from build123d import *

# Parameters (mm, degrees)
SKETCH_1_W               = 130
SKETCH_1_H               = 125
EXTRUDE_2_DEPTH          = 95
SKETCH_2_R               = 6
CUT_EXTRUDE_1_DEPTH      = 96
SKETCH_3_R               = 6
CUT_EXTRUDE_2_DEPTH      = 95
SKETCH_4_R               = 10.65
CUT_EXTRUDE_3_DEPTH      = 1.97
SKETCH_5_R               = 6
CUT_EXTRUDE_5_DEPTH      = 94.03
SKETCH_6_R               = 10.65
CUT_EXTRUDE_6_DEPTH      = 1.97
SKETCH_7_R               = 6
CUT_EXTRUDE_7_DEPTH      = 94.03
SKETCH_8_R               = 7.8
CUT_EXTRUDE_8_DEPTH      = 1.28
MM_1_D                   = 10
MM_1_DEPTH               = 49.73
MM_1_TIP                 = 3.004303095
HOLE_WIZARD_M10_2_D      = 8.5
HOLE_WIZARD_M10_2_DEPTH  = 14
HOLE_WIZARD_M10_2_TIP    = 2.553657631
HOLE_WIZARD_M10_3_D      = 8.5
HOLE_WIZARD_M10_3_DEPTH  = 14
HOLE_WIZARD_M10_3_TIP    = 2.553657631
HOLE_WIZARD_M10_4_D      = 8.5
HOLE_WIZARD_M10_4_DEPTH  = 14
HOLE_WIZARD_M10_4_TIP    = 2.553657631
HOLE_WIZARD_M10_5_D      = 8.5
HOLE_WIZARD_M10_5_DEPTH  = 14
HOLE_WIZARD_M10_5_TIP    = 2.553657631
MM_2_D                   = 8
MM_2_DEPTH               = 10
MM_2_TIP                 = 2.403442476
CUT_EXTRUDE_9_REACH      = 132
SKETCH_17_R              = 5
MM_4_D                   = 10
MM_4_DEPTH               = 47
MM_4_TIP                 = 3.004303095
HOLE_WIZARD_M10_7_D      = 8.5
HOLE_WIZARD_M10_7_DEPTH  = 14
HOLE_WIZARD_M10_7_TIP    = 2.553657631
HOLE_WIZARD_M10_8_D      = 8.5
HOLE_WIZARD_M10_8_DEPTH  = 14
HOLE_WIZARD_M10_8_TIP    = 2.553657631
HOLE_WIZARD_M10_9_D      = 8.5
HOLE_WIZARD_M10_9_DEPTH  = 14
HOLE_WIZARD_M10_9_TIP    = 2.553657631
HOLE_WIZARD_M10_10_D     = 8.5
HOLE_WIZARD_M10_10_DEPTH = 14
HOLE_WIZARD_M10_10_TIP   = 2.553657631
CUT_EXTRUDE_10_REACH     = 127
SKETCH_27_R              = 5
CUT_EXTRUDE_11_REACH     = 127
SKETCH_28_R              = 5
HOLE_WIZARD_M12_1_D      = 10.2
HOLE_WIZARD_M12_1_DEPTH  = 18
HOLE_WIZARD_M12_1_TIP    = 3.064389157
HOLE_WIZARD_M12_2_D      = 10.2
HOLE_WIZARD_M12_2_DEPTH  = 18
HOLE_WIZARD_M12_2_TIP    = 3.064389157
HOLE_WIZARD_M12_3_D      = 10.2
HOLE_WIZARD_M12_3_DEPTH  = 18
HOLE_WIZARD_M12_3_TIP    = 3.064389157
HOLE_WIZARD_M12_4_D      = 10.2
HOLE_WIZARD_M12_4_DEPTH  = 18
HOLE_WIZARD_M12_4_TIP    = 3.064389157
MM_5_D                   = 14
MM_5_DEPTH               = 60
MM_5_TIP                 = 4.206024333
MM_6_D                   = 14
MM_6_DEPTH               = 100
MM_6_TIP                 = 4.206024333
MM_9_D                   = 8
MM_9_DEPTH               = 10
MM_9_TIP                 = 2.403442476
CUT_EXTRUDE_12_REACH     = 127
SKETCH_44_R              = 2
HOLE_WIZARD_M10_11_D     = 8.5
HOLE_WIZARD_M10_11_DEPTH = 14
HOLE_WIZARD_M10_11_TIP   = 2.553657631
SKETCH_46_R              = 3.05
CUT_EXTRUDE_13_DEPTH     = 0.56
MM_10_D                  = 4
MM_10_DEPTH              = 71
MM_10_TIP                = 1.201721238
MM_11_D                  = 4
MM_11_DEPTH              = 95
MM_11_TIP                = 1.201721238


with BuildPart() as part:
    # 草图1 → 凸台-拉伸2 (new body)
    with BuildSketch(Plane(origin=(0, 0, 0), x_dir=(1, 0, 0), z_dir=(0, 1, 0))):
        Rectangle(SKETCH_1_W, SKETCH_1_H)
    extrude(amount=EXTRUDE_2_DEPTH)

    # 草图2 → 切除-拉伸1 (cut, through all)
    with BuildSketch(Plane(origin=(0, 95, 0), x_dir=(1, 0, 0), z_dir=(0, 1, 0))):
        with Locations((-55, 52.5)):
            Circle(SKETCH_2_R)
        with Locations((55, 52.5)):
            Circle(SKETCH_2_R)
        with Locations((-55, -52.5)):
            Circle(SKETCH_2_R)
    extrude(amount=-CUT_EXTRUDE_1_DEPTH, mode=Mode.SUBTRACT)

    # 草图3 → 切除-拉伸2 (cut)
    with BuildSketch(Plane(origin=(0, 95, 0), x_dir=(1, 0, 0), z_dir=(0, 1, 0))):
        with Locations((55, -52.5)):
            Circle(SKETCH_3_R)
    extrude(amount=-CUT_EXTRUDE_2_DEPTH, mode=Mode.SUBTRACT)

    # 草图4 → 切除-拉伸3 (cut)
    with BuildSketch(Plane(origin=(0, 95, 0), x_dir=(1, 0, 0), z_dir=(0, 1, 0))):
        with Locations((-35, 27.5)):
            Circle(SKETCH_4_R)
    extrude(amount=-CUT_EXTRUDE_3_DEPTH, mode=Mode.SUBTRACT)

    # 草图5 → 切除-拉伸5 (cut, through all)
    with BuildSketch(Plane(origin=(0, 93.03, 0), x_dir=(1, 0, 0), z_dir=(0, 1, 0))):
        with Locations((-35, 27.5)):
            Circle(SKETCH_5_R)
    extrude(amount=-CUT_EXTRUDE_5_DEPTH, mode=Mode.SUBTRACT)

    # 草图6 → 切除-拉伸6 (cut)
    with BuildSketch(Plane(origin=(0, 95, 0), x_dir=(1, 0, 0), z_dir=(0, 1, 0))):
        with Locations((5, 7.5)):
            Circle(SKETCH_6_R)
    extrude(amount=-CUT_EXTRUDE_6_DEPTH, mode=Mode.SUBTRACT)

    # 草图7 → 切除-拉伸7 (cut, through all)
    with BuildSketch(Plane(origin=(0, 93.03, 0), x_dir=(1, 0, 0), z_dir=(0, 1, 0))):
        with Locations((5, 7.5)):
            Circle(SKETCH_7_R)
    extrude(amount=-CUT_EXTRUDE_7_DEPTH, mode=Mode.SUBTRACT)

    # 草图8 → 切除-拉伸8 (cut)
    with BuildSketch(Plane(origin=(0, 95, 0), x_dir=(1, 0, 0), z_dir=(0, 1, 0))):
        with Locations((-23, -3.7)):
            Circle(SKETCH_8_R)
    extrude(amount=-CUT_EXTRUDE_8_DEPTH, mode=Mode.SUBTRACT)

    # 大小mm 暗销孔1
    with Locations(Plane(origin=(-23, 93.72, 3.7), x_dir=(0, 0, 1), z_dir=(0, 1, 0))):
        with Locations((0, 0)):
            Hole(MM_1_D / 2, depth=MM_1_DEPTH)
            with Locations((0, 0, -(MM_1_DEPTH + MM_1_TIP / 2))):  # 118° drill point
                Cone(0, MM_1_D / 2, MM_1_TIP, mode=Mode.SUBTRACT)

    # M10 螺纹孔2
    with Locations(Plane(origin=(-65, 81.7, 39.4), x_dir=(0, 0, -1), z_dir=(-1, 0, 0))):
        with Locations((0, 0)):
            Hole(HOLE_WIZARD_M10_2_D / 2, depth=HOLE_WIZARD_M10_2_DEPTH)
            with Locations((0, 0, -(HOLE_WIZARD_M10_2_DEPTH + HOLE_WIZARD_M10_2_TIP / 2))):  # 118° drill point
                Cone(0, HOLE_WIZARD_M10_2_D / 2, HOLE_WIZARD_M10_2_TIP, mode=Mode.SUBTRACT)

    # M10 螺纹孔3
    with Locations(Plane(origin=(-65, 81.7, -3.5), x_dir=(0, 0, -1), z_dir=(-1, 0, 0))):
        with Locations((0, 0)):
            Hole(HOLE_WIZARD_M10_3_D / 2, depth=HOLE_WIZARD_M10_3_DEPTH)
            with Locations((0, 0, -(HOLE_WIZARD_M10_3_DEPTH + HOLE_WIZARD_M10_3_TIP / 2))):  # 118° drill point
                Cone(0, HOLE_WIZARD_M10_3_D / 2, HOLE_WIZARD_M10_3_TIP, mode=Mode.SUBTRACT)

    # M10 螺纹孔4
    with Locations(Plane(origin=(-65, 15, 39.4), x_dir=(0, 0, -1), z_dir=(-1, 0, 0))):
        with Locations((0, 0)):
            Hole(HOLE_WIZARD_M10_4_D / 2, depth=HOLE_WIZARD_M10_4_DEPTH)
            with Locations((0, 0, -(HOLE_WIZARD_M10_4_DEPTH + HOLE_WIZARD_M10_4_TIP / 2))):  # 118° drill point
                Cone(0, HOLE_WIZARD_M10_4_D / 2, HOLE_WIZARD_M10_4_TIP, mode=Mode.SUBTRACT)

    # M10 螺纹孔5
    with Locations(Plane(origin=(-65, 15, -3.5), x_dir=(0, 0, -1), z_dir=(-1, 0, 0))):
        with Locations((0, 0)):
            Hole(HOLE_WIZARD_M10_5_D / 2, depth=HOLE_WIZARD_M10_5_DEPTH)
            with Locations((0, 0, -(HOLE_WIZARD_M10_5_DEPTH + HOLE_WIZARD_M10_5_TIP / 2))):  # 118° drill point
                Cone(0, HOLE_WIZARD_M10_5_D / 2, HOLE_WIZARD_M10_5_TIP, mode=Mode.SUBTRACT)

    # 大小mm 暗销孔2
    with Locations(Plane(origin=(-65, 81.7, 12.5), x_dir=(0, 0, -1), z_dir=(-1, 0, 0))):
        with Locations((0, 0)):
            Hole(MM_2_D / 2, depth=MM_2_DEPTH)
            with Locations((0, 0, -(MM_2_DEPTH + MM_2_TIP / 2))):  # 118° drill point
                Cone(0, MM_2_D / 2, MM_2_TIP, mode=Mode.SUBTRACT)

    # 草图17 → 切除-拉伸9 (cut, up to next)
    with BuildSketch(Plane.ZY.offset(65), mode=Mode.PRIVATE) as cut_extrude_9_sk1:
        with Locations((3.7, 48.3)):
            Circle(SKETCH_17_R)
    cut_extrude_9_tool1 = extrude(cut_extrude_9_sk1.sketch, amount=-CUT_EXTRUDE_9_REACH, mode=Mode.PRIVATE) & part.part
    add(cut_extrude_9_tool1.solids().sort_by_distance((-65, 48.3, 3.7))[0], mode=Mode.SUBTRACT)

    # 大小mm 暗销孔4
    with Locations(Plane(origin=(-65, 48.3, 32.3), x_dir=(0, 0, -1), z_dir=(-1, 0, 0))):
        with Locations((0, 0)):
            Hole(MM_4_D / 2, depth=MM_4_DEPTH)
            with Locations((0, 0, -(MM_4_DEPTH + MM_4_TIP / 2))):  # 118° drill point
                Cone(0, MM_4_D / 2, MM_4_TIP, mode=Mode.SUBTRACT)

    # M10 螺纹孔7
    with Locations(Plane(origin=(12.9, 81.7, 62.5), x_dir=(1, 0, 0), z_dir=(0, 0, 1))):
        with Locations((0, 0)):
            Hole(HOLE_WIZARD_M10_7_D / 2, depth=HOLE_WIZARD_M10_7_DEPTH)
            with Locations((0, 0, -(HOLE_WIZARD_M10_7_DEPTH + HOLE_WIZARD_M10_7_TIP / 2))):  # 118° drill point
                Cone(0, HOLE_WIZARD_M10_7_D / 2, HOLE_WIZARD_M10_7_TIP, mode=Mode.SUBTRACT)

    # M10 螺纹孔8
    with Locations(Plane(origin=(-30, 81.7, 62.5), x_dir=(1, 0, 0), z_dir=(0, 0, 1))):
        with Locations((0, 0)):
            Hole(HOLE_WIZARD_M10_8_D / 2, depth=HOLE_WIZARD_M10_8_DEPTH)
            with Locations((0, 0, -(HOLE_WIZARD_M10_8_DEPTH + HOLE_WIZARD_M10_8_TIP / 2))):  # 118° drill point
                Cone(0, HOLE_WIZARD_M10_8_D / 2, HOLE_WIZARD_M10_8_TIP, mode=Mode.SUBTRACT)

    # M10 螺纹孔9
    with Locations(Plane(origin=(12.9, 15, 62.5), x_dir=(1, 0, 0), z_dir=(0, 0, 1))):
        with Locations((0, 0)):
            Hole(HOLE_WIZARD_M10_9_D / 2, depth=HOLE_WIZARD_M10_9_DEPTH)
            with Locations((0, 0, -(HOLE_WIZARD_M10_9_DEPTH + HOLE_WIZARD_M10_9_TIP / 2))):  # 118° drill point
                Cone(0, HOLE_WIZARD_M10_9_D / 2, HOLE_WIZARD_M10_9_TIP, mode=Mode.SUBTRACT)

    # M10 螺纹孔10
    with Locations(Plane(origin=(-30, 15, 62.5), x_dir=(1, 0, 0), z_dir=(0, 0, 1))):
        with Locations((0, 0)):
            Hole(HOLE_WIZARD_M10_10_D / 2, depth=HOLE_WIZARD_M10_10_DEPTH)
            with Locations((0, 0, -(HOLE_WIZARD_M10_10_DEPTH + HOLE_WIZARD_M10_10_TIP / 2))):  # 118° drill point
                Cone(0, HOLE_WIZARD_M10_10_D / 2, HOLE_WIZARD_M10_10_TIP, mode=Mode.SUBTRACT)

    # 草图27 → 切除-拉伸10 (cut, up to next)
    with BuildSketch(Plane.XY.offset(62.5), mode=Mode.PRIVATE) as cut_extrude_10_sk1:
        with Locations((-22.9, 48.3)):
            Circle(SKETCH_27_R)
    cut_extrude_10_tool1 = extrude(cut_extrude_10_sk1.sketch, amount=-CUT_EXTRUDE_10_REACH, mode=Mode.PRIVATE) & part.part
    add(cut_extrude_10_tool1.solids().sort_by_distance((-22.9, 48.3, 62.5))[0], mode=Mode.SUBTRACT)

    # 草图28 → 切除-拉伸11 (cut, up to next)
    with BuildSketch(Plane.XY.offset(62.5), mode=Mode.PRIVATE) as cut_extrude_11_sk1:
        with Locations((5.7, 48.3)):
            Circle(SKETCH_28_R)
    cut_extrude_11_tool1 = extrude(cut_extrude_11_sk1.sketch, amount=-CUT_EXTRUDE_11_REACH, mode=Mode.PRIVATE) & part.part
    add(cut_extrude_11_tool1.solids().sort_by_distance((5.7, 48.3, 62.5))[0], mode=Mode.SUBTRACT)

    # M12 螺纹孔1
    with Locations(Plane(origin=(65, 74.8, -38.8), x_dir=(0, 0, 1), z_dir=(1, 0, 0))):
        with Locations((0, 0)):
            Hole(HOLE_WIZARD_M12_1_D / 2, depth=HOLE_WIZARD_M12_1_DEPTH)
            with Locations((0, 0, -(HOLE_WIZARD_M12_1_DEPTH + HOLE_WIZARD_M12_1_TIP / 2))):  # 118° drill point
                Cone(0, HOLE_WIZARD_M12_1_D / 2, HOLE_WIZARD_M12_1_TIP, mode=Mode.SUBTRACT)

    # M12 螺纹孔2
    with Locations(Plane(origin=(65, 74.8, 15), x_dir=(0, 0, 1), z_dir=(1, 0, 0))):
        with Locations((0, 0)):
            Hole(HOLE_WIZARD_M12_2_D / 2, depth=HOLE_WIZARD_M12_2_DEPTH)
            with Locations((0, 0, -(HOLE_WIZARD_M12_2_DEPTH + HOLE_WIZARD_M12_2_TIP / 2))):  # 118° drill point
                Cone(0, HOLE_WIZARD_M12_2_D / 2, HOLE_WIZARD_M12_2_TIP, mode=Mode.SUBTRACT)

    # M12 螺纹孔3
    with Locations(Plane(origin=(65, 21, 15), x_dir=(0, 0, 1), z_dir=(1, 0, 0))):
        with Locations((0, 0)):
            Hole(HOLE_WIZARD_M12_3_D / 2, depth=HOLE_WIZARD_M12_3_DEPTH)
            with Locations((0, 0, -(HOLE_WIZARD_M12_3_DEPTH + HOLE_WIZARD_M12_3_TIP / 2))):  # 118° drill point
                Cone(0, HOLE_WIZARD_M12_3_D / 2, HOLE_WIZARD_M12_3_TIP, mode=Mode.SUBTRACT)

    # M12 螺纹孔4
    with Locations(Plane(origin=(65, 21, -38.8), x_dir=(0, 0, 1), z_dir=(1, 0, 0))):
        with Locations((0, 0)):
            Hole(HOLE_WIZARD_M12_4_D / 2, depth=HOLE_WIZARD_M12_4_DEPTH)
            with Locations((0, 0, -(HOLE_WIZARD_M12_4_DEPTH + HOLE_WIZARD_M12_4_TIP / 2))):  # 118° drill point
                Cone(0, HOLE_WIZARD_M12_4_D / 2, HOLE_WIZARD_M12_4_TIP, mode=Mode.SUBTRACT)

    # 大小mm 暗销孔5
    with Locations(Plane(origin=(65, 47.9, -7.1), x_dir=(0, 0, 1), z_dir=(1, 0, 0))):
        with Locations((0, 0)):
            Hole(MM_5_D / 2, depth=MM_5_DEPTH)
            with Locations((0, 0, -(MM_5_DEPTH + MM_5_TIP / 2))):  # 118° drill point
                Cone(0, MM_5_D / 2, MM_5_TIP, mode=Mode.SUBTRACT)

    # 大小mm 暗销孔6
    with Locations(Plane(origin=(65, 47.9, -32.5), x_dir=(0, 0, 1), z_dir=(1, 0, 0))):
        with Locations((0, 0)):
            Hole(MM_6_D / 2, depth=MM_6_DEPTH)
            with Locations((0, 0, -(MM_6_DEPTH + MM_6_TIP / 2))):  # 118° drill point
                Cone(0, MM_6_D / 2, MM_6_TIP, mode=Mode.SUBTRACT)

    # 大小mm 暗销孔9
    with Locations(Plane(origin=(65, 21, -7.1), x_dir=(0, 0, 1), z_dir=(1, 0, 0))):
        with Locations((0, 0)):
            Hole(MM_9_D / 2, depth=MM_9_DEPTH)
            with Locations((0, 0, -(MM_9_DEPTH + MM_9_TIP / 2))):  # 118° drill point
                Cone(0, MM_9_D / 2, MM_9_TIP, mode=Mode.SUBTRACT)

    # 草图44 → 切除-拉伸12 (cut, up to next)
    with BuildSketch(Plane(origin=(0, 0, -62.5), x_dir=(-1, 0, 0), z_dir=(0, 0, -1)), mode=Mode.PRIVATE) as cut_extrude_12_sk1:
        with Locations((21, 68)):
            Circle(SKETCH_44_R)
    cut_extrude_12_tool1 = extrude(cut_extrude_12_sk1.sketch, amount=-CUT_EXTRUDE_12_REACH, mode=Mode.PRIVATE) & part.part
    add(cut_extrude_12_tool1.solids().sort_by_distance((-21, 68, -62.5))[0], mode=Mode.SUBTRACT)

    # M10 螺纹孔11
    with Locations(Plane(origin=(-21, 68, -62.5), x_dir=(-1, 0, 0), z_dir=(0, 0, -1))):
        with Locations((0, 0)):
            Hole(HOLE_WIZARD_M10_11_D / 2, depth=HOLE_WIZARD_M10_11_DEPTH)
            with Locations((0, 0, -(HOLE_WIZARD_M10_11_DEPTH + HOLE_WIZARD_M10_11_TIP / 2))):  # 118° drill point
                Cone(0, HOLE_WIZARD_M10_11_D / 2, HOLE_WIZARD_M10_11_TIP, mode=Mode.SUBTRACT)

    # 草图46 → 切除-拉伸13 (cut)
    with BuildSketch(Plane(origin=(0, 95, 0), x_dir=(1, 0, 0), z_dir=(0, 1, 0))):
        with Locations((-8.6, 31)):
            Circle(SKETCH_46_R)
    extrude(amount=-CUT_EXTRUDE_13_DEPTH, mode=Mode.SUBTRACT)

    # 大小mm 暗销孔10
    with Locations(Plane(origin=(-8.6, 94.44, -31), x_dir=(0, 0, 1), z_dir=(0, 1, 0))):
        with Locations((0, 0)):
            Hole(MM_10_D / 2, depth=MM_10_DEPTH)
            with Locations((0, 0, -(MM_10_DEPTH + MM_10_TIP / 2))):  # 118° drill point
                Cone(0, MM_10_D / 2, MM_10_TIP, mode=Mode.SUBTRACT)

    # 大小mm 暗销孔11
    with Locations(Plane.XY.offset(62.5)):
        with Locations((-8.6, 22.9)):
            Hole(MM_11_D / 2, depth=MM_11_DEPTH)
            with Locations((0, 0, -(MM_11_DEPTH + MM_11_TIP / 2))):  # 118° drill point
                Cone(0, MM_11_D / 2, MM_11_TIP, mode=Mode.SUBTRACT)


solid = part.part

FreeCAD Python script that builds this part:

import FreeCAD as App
import Part
import Sketcher
from FreeCAD import Vector
Q = App.Units.Quantity


def add_polygon(sketch, points):
    """Adds a closed chain of lines whose ends are joined by coincident constraints."""
    first, n = sketch.GeometryCount, len(points)
    for a, b in zip(points, points[1:] + points[:1]):
        sketch.addGeometry(Part.LineSegment(App.Vector(*a, 0), App.Vector(*b, 0)), False)
    for i in range(n):
        sketch.addConstraint(Sketcher.Constraint("Coincident", first + i, 2, first + (i + 1) % n, 1))

doc = App.newDocument("Part")
body = doc.addObject("PartDesign::Body", "Body")

# Sketch on XZ plane
sketch1 = body.newObject("Sketcher::SketchObject", "Sketch")
sketch1.AttachmentSupport = (doc.getObject("XZ_Plane"), [""])
sketch1.MapMode = "FlatFace"
add_polygon(sketch1, [(-65, -62), (-65, 62), (65, 62), (65, -62)])  # lines 0-3
sketch1.addConstraint(Sketcher.Constraint("Vertical", 0))
sketch1.addConstraint(Sketcher.Constraint("Horizontal", 1))
sketch1.addConstraint(Sketcher.Constraint("Vertical", 2))
sketch1.addConstraint(Sketcher.Constraint("Horizontal", 3))
sketch1.addConstraint(Sketcher.Constraint("Symmetric", 0, 2, 2, 2, -1, 1))
sketch1.addConstraint(Sketcher.Constraint("DistanceX", 1, 1, 1, 2, Q("130 mm")))
sketch1.addConstraint(Sketcher.Constraint("DistanceY", 0, 1, 0, 2, Q("125 mm")))
pad1 = body.newObject("PartDesign::Pad", "Pad")
pad1.Profile = sketch1
pad1.Length = 95
pad1.Reversed = True

# Sketch on XZ plane
sketch2 = body.newObject("Sketcher::SketchObject", "Sketch001")
sketch2.AttachmentSupport = (doc.getObject("XZ_Plane"), [""])
sketch2.MapMode = "FlatFace"
sketch2.AttachmentOffset = App.Placement(Vector(0, 0, -95), App.Rotation())
sketch2.addGeometry(Part.Circle(Vector(-55, -52, 0), Vector(0, 0, 1), 6), False)
sketch2.addGeometry(Part.Circle(Vector(55, -52, 0), Vector(0, 0, 1), 6), False)
sketch2.addGeometry(Part.Circle(Vector(-55, 52, 0), Vector(0, 0, 1), 6), False)
sketch2.addConstraint(Sketcher.Constraint("Equal", 0, 1))
sketch2.addConstraint(Sketcher.Constraint("Equal", 1, 2))
sketch2.addConstraint(Sketcher.Constraint("Symmetric", 1, 3, 2, 3, -1, 1))
sketch2.addConstraint(Sketcher.Constraint("Symmetric", 0, 3, 1, 3, -2))
sketch2.addConstraint(Sketcher.Constraint("Diameter", 0, Q("12 mm")))
sketch2.addConstraint(Sketcher.Constraint("DistanceX", 0, 3, -1, 1, Q("55 mm")))
sketch2.addConstraint(Sketcher.Constraint("DistanceY", 0, 3, 2, 3, Q("105 mm")))
pocket1 = body.newObject("PartDesign::Pocket", "Pocket")
pocket1.Profile = sketch2
pocket1.Type = "ThroughAll"
pocket1.Reversed = True

# Sketch on XZ plane
sketch3 = body.newObject("Sketcher::SketchObject", "Sketch002")
sketch3.AttachmentSupport = (doc.getObject("XZ_Plane"), [""])
sketch3.MapMode = "FlatFace"
sketch3.AttachmentOffset = App.Placement(Vector(0, 0, -95), App.Rotation())
sketch3.addGeometry(Part.Circle(Vector(55, 52, 0), Vector(0, 0, 1), 6), False)
sketch3.addConstraint(Sketcher.Constraint("Diameter", 0, Q("12 mm")))
sketch3.addConstraint(Sketcher.Constraint("DistanceX", -1, 1, 0, 3, Q("55 mm")))
sketch3.addConstraint(Sketcher.Constraint("DistanceY", -1, 1, 0, 3, Q("52.5 mm")))
pocket2 = body.newObject("PartDesign::Pocket", "Pocket001")
pocket2.Profile = sketch3
pocket2.Length = 95
pocket2.Reversed = True

# Sketch on XZ plane
sketch4 = body.newObject("Sketcher::SketchObject", "Sketch003")
sketch4.AttachmentSupport = (doc.getObject("XZ_Plane"), [""])
sketch4.MapMode = "FlatFace"
sketch4.AttachmentOffset = App.Placement(Vector(0, 0, -95), App.Rotation())
sketch4.addGeometry(Part.Circle(Vector(-35, -28, 0), Vector(0, 0, 1), 11), False)
sketch4.addConstraint(Sketcher.Constraint("Diameter", 0, Q("21.3 mm")))
sketch4.addConstraint(Sketcher.Constraint("DistanceX", 0, 3, -1, 1, Q("35 mm")))
sketch4.addConstraint(Sketcher.Constraint("DistanceY", 0, 3, -1, 1, Q("27.5 mm")))
pocket3 = body.newObject("PartDesign::Pocket", "Pocket002")
pocket3.Profile = sketch4
pocket3.Length = 1.97
pocket3.Reversed = True

# Sketch on XZ plane
sketch5 = body.newObject("Sketcher::SketchObject", "Sketch004")
sketch5.AttachmentSupport = (doc.getObject("XZ_Plane"), [""])
sketch5.MapMode = "FlatFace"
sketch5.AttachmentOffset = App.Placement(Vector(0, 0, -93.03), App.Rotation())
sketch5.addGeometry(Part.Circle(Vector(-35, -28, 0), Vector(0, 0, 1), 6), False)
sketch5.addConstraint(Sketcher.Constraint("Diameter", 0, Q("12 mm")))
sketch5.addConstraint(Sketcher.Constraint("DistanceX", 0, 3, -1, 1, Q("35 mm")))
sketch5.addConstraint(Sketcher.Constraint("DistanceY", 0, 3, -1, 1, Q("27.5 mm")))
pocket4 = body.newObject("PartDesign::Pocket", "Pocket003")
pocket4.Profile = sketch5
pocket4.Type = "ThroughAll"
pocket4.Reversed = True

# Sketch on XZ plane
sketch6 = body.newObject("Sketcher::SketchObject", "Sketch005")
sketch6.AttachmentSupport = (doc.getObject("XZ_Plane"), [""])
sketch6.MapMode = "FlatFace"
sketch6.AttachmentOffset = App.Placement(Vector(0, 0, -95), App.Rotation())
sketch6.addGeometry(Part.Circle(Vector(5, -8, 0), Vector(0, 0, 1), 11), False)
sketch6.addConstraint(Sketcher.Constraint("Diameter", 0, Q("21.3 mm")))
sketch6.addConstraint(Sketcher.Constraint("DistanceX", -1, 1, 0, 3, Q("5 mm")))
sketch6.addConstraint(Sketcher.Constraint("DistanceY", 0, 3, -1, 1, Q("7.5 mm")))
pocket5 = body.newObject("PartDesign::Pocket", "Pocket004")
pocket5.Profile = sketch6
pocket5.Length = 1.97
pocket5.Reversed = True

# Sketch on XZ plane
sketch7 = body.newObject("Sketcher::SketchObject", "Sketch006")
sketch7.AttachmentSupport = (doc.getObject("XZ_Plane"), [""])
sketch7.MapMode = "FlatFace"
sketch7.AttachmentOffset = App.Placement(Vector(0, 0, -93.03), App.Rotation())
sketch7.addGeometry(Part.Circle(Vector(5, -8, 0), Vector(0, 0, 1), 6), False)
sketch7.addConstraint(Sketcher.Constraint("Diameter", 0, Q("12 mm")))
sketch7.addConstraint(Sketcher.Constraint("DistanceX", -1, 1, 0, 3, Q("5 mm")))
sketch7.addConstraint(Sketcher.Constraint("DistanceY", 0, 3, -1, 1, Q("7.5 mm")))
pocket6 = body.newObject("PartDesign::Pocket", "Pocket005")
pocket6.Profile = sketch7
pocket6.Type = "ThroughAll"
pocket6.Reversed = True

# Sketch on XZ plane
sketch8 = body.newObject("Sketcher::SketchObject", "Sketch007")
sketch8.AttachmentSupport = (doc.getObject("XZ_Plane"), [""])
sketch8.MapMode = "FlatFace"
sketch8.AttachmentOffset = App.Placement(Vector(0, 0, -95), App.Rotation())
sketch8.addGeometry(Part.Circle(Vector(-23, 4, 0), Vector(0, 0, 1), 8), False)
sketch8.addConstraint(Sketcher.Constraint("Diameter", 0, Q("15.6 mm")))
sketch8.addConstraint(Sketcher.Constraint("DistanceX", 0, 3, -1, 1, Q("23 mm")))
sketch8.addConstraint(Sketcher.Constraint("DistanceY", -1, 1, 0, 3, Q("3.7 mm")))
pocket7 = body.newObject("PartDesign::Pocket", "Pocket006")
pocket7.Profile = sketch8
pocket7.Length = 1.28
pocket7.Reversed = True

# Sketch on XZ plane
sketch9 = body.newObject("Sketcher::SketchObject", "Sketch008")
sketch9.AttachmentSupport = (doc.getObject("XZ_Plane"), [""])
sketch9.MapMode = "FlatFace"
sketch9.AttachmentOffset = App.Placement(Vector(0, 0, -93.72), App.Rotation())
sketch9.addGeometry(Part.Circle(Vector(-23, 4, 0), Vector(0, 0, 1), 5), False)
sketch9.addConstraint(Sketcher.Constraint("Diameter", 0, Q("10 mm")))
sketch9.addConstraint(Sketcher.Constraint("DistanceX", 0, 3, -1, 1, Q("23 mm")))
sketch9.addConstraint(Sketcher.Constraint("DistanceY", -1, 1, 0, 3, Q("3.7 mm")))
doc.recompute()
hole = body.newObject("PartDesign::Hole", "Hole")
hole.Profile = sketch9
hole.ThreadType = "None"
hole.Diameter = 10
hole.DepthType = "Dimension"
hole.Depth = 49.73
hole.DrillPoint = "Angled"
hole.DrillPointAngle = 118
hole.Reversed = True

# Sketch on YZ plane
sketch10 = body.newObject("Sketcher::SketchObject", "Sketch009")
sketch10.AttachmentSupport = (doc.getObject("YZ_Plane"), [""])
sketch10.MapMode = "FlatFace"
sketch10.AttachmentOffset = App.Placement(Vector(0, 0, -65), App.Rotation())
sketch10.addGeometry(Part.Circle(Vector(81.7, 39.4, 0), Vector(0, 0, 1), 4.2), False)
sketch10.addConstraint(Sketcher.Constraint("Diameter", 0, Q("8.5 mm")))
sketch10.addConstraint(Sketcher.Constraint("DistanceX", -1, 1, 0, 3, Q("81.7 mm")))
sketch10.addConstraint(Sketcher.Constraint("DistanceY", -1, 1, 0, 3, Q("39.4 mm")))
doc.recompute()
hole2 = body.newObject("PartDesign::Hole", "Hole001")
hole2.Profile = sketch10
hole2.ThreadType = "None"
hole2.Diameter = 8.5
hole2.DepthType = "Dimension"
hole2.Depth = 14
hole2.DrillPoint = "Angled"
hole2.DrillPointAngle = 118
hole2.Reversed = True

# Sketch on YZ plane
sketch11 = body.newObject("Sketcher::SketchObject", "Sketch010")
sketch11.AttachmentSupport = (doc.getObject("YZ_Plane"), [""])
sketch11.MapMode = "FlatFace"
sketch11.AttachmentOffset = App.Placement(Vector(0, 0, -65), App.Rotation())
sketch11.addGeometry(Part.Circle(Vector(81.7, -3.5, 0), Vector(0, 0, 1), 4.2), False)
sketch11.addConstraint(Sketcher.Constraint("Diameter", 0, Q("8.5 mm")))
sketch11.addConstraint(Sketcher.Constraint("DistanceX", -1, 1, 0, 3, Q("81.7 mm")))
sketch11.addConstraint(Sketcher.Constraint("DistanceY", 0, 3, -1, 1, Q("3.5 mm")))
doc.recompute()
hole3 = body.newObject("PartDesign::Hole", "Hole002")
hole3.Profile = sketch11
hole3.ThreadType = "None"
hole3.Diameter = 8.5
hole3.DepthType = "Dimension"
hole3.Depth = 14
hole3.DrillPoint = "Angled"
hole3.DrillPointAngle = 118
hole3.Reversed = True

# Sketch on YZ plane
sketch12 = body.newObject("Sketcher::SketchObject", "Sketch011")
sketch12.AttachmentSupport = (doc.getObject("YZ_Plane"), [""])
sketch12.MapMode = "FlatFace"
sketch12.AttachmentOffset = App.Placement(Vector(0, 0, -65), App.Rotation())
sketch12.addGeometry(Part.Circle(Vector(15, 39.4, 0), Vector(0, 0, 1), 4.2), False)
sketch12.addConstraint(Sketcher.Constraint("Diameter", 0, Q("8.5 mm")))
sketch12.addConstraint(Sketcher.Constraint("DistanceX", -1, 1, 0, 3, Q("15 mm")))
sketch12.addConstraint(Sketcher.Constraint("DistanceY", -1, 1, 0, 3, Q("39.4 mm")))
doc.recompute()
hole4 = body.newObject("PartDesign::Hole", "Hole003")
hole4.Profile = sketch12
hole4.ThreadType = "None"
hole4.Diameter = 8.5
hole4.DepthType = "Dimension"
hole4.Depth = 14
hole4.DrillPoint = "Angled"
hole4.DrillPointAngle = 118
hole4.Reversed = True

# Sketch on YZ plane
sketch13 = body.newObject("Sketcher::SketchObject", "Sketch012")
sketch13.AttachmentSupport = (doc.getObject("YZ_Plane"), [""])
sketch13.MapMode = "FlatFace"
sketch13.AttachmentOffset = App.Placement(Vector(0, 0, -65), App.Rotation())
sketch13.addGeometry(Part.Circle(Vector(15, -3.5, 0), Vector(0, 0, 1), 4.2), False)
sketch13.addConstraint(Sketcher.Constraint("Diameter", 0, Q("8.5 mm")))
sketch13.addConstraint(Sketcher.Constraint("DistanceX", -1, 1, 0, 3, Q("15 mm")))
sketch13.addConstraint(Sketcher.Constraint("DistanceY", 0, 3, -1, 1, Q("3.5 mm")))
doc.recompute()
hole5 = body.newObject("PartDesign::Hole", "Hole004")
hole5.Profile = sketch13
hole5.ThreadType = "None"
hole5.Diameter = 8.5
hole5.DepthType = "Dimension"
hole5.Depth = 14
hole5.DrillPoint = "Angled"
hole5.DrillPointAngle = 118
hole5.Reversed = True

# Sketch on YZ plane
sketch14 = body.newObject("Sketcher::SketchObject", "Sketch013")
sketch14.AttachmentSupport = (doc.getObject("YZ_Plane"), [""])
sketch14.MapMode = "FlatFace"
sketch14.AttachmentOffset = App.Placement(Vector(0, 0, -65), App.Rotation())
sketch14.addGeometry(Part.Circle(Vector(81.7, 12.5, 0), Vector(0, 0, 1), 4), False)
sketch14.addConstraint(Sketcher.Constraint("Diameter", 0, Q("8 mm")))
sketch14.addConstraint(Sketcher.Constraint("DistanceX", -1, 1, 0, 3, Q("81.7 mm")))
sketch14.addConstraint(Sketcher.Constraint("DistanceY", -1, 1, 0, 3, Q("12.5 mm")))
doc.recompute()
hole6 = body.newObject("PartDesign::Hole", "Hole005")
hole6.Profile = sketch14
hole6.ThreadType = "None"
hole6.Diameter = 8
hole6.DepthType = "Dimension"
hole6.Depth = 10
hole6.DrillPoint = "Angled"
hole6.DrillPointAngle = 118
hole6.Reversed = True

# Sketch on YZ plane
sketch15 = body.newObject("Sketcher::SketchObject", "Sketch014")
sketch15.AttachmentSupport = (doc.getObject("YZ_Plane"), [""])
sketch15.MapMode = "FlatFace"
sketch15.AttachmentOffset = App.Placement(Vector(0, 0, -65), App.Rotation())
sketch15.addGeometry(Part.Circle(Vector(48, 4, 0), Vector(0, 0, 1), 5), False)
sketch15.addConstraint(Sketcher.Constraint("Diameter", 0, Q("10 mm")))
sketch15.addConstraint(Sketcher.Constraint("DistanceX", -1, 1, 0, 3, Q("48.3 mm")))
sketch15.addConstraint(Sketcher.Constraint("DistanceY", -1, 1, 0, 3, Q("3.7 mm")))
pocket8 = body.newObject("PartDesign::Pocket", "Pocket007")
pocket8.Profile = sketch15
pocket8.Length = 42
pocket8.Reversed = True

# Sketch on YZ plane
sketch16 = body.newObject("Sketcher::SketchObject", "Sketch015")
sketch16.AttachmentSupport = (doc.getObject("YZ_Plane"), [""])
sketch16.MapMode = "FlatFace"
sketch16.AttachmentOffset = App.Placement(Vector(0, 0, -65), App.Rotation())
sketch16.addGeometry(Part.Circle(Vector(48, 32, 0), Vector(0, 0, 1), 5), False)
sketch16.addConstraint(Sketcher.Constraint("Diameter", 0, Q("10 mm")))
sketch16.addConstraint(Sketcher.Constraint("DistanceX", -1, 1, 0, 3, Q("48.3 mm")))
sketch16.addConstraint(Sketcher.Constraint("DistanceY", -1, 1, 0, 3, Q("32.3 mm")))
doc.recompute()
hole7 = body.newObject("PartDesign::Hole", "Hole006")
hole7.Profile = sketch16
hole7.ThreadType = "None"
hole7.Diameter = 10
hole7.DepthType = "Dimension"
hole7.Depth = 47
hole7.DrillPoint = "Angled"
hole7.DrillPointAngle = 118
hole7.Reversed = True

# Sketch on XY plane
sketch17 = body.newObject("Sketcher::SketchObject", "Sketch016")
sketch17.AttachmentSupport = (doc.getObject("XY_Plane"), [""])
sketch17.MapMode = "FlatFace"
sketch17.AttachmentOffset = App.Placement(Vector(0, 0, 62.5), App.Rotation())
sketch17.addGeometry(Part.Circle(Vector(12.9, 81.7, 0), Vector(0, 0, 1), 4.2), False)
sketch17.addConstraint(Sketcher.Constraint("Diameter", 0, Q("8.5 mm")))
sketch17.addConstraint(Sketcher.Constraint("DistanceX", -1, 1, 0, 3, Q("12.9 mm")))
sketch17.addConstraint(Sketcher.Constraint("DistanceY", -1, 1, 0, 3, Q("81.7 mm")))
doc.recompute()
hole8 = body.newObject("PartDesign::Hole", "Hole007")
hole8.Profile = sketch17
hole8.ThreadType = "None"
hole8.Diameter = 8.5
hole8.DepthType = "Dimension"
hole8.Depth = 14
hole8.DrillPoint = "Angled"
hole8.DrillPointAngle = 118

# Sketch on XY plane
sketch18 = body.newObject("Sketcher::SketchObject", "Sketch017")
sketch18.AttachmentSupport = (doc.getObject("XY_Plane"), [""])
sketch18.MapMode = "FlatFace"
sketch18.AttachmentOffset = App.Placement(Vector(0, 0, 62.5), App.Rotation())
sketch18.addGeometry(Part.Circle(Vector(-30, 81.7, 0), Vector(0, 0, 1), 4.2), False)
sketch18.addConstraint(Sketcher.Constraint("Diameter", 0, Q("8.5 mm")))
sketch18.addConstraint(Sketcher.Constraint("DistanceX", 0, 3, -1, 1, Q("30 mm")))
sketch18.addConstraint(Sketcher.Constraint("DistanceY", -1, 1, 0, 3, Q("81.7 mm")))
doc.recompute()
hole9 = body.newObject("PartDesign::Hole", "Hole008")
hole9.Profile = sketch18
hole9.ThreadType = "None"
hole9.Diameter = 8.5
hole9.DepthType = "Dimension"
hole9.Depth = 14
hole9.DrillPoint = "Angled"
hole9.DrillPointAngle = 118

# Sketch on XY plane
sketch19 = body.newObject("Sketcher::SketchObject", "Sketch018")
sketch19.AttachmentSupport = (doc.getObject("XY_Plane"), [""])
sketch19.MapMode = "FlatFace"
sketch19.AttachmentOffset = App.Placement(Vector(0, 0, 62.5), App.Rotation())
sketch19.addGeometry(Part.Circle(Vector(12.9, 15, 0), Vector(0, 0, 1), 4.2), False)
sketch19.addConstraint(Sketcher.Constraint("Diameter", 0, Q("8.5 mm")))
sketch19.addConstraint(Sketcher.Constraint("DistanceY", -1, 1, 0, 3, Q("15 mm")))
sketch19.addConstraint(Sketcher.Constraint("DistanceX", -1, 1, 0, 3, Q("12.9 mm")))
doc.recompute()
hole10 = body.newObject("PartDesign::Hole", "Hole009")
hole10.Profile = sketch19
hole10.ThreadType = "None"
hole10.Diameter = 8.5
hole10.DepthType = "Dimension"
hole10.Depth = 14
hole10.DrillPoint = "Angled"
hole10.DrillPointAngle = 118

# Sketch on XY plane
sketch20 = body.newObject("Sketcher::SketchObject", "Sketch019")
sketch20.AttachmentSupport = (doc.getObject("XY_Plane"), [""])
sketch20.MapMode = "FlatFace"
sketch20.AttachmentOffset = App.Placement(Vector(0, 0, 62.5), App.Rotation())
sketch20.addGeometry(Part.Circle(Vector(-30, 15, 0), Vector(0, 0, 1), 4.2), False)
sketch20.addConstraint(Sketcher.Constraint("Diameter", 0, Q("8.5 mm")))
sketch20.addConstraint(Sketcher.Constraint("DistanceX", 0, 3, -1, 1, Q("30 mm")))
sketch20.addConstraint(Sketcher.Constraint("DistanceY", -1, 1, 0, 3, Q("15 mm")))
doc.recompute()
hole11 = body.newObject("PartDesign::Hole", "Hole010")
hole11.Profile = sketch20
hole11.ThreadType = "None"
hole11.Diameter = 8.5
hole11.DepthType = "Dimension"
hole11.Depth = 14
hole11.DrillPoint = "Angled"
hole11.DrillPointAngle = 118

# Sketch on XY plane
sketch21 = body.newObject("Sketcher::SketchObject", "Sketch020")
sketch21.AttachmentSupport = (doc.getObject("XY_Plane"), [""])
sketch21.MapMode = "FlatFace"
sketch21.AttachmentOffset = App.Placement(Vector(0, 0, 62.5), App.Rotation())
sketch21.addGeometry(Part.Circle(Vector(-23, 48, 0), Vector(0, 0, 1), 5), False)
sketch21.addConstraint(Sketcher.Constraint("Diameter", 0, Q("10 mm")))
sketch21.addConstraint(Sketcher.Constraint("DistanceX", 0, 3, -1, 1, Q("22.9 mm")))
sketch21.addConstraint(Sketcher.Constraint("DistanceY", -1, 1, 0, 3, Q("48.3 mm")))
pocket9 = body.newObject("PartDesign::Pocket", "Pocket008")
pocket9.Profile = sketch21
pocket9.Length = 30.2

# Sketch on XY plane
sketch22 = body.newObject("Sketcher::SketchObject", "Sketch021")
sketch22.AttachmentSupport = (doc.getObject("XY_Plane"), [""])
sketch22.MapMode = "FlatFace"
sketch22.AttachmentOffset = App.Placement(Vector(0, 0, 62.5), App.Rotation())
sketch22.addGeometry(Part.Circle(Vector(6, 48, 0), Vector(0, 0, 1), 5), False)
sketch22.addConstraint(Sketcher.Constraint("Diameter", 0, Q("10 mm")))
sketch22.addConstraint(Sketcher.Constraint("DistanceX", -1, 1, 0, 3, Q("5.7 mm")))
sketch22.addConstraint(Sketcher.Constraint("DistanceY", -1, 1, 0, 3, Q("48.3 mm")))
pocket10 = body.newObject("PartDesign::Pocket", "Pocket009")
pocket10.Profile = sketch22
pocket10.Type = "UpToFirst"

# Sketch on YZ plane
sketch23 = body.newObject("Sketcher::SketchObject", "Sketch022")
sketch23.AttachmentSupport = (doc.getObject("YZ_Plane"), [""])
sketch23.MapMode = "FlatFace"
sketch23.AttachmentOffset = App.Placement(Vector(0, 0, 65), App.Rotation())
sketch23.addGeometry(Part.Circle(Vector(75, -39, 0), Vector(0, 0, 1), 5), False)
sketch23.addConstraint(Sketcher.Constraint("Diameter", 0, Q("10.2 mm")))
sketch23.addConstraint(Sketcher.Constraint("DistanceX", -1, 1, 0, 3, Q("74.8 mm")))
sketch23.addConstraint(Sketcher.Constraint("DistanceY", 0, 3, -1, 1, Q("38.8 mm")))
doc.recompute()
hole12 = body.newObject("PartDesign::Hole", "Hole011")
hole12.Profile = sketch23
hole12.ThreadType = "None"
hole12.Diameter = 10.2
hole12.DepthType = "Dimension"
hole12.Depth = 18
hole12.DrillPoint = "Angled"
hole12.DrillPointAngle = 118

# Sketch on YZ plane
sketch24 = body.newObject("Sketcher::SketchObject", "Sketch023")
sketch24.AttachmentSupport = (doc.getObject("YZ_Plane"), [""])
sketch24.MapMode = "FlatFace"
sketch24.AttachmentOffset = App.Placement(Vector(0, 0, 65), App.Rotation())
sketch24.addGeometry(Part.Circle(Vector(75, 15, 0), Vector(0, 0, 1), 5), False)
sketch24.addConstraint(Sketcher.Constraint("Diameter", 0, Q("10.2 mm")))
sketch24.addConstraint(Sketcher.Constraint("DistanceY", -1, 1, 0, 3, Q("15 mm")))
sketch24.addConstraint(Sketcher.Constraint("DistanceX", -1, 1, 0, 3, Q("74.8 mm")))
doc.recompute()
hole13 = body.newObject("PartDesign::Hole", "Hole012")
hole13.Profile = sketch24
hole13.ThreadType = "None"
hole13.Diameter = 10.2
hole13.DepthType = "Dimension"
hole13.Depth = 18
hole13.DrillPoint = "Angled"
hole13.DrillPointAngle = 118

# Sketch on YZ plane
sketch25 = body.newObject("Sketcher::SketchObject", "Sketch024")
sketch25.AttachmentSupport = (doc.getObject("YZ_Plane"), [""])
sketch25.MapMode = "FlatFace"
sketch25.AttachmentOffset = App.Placement(Vector(0, 0, 65), App.Rotation())
sketch25.addGeometry(Part.Circle(Vector(21, 15, 0), Vector(0, 0, 1), 5), False)
sketch25.addConstraint(Sketcher.Constraint("Diameter", 0, Q("10.2 mm")))
sketch25.addConstraint(Sketcher.Constraint("DistanceX", -1, 1, 0, 3, Q("21 mm")))
sketch25.addConstraint(Sketcher.Constraint("DistanceY", -1, 1, 0, 3, Q("15 mm")))
doc.recompute()
hole14 = body.newObject("PartDesign::Hole", "Hole013")
hole14.Profile = sketch25
hole14.ThreadType = "None"
hole14.Diameter = 10.2
hole14.DepthType = "Dimension"
hole14.Depth = 18
hole14.DrillPoint = "Angled"
hole14.DrillPointAngle = 118

# Sketch on YZ plane
sketch26 = body.newObject("Sketcher::SketchObject", "Sketch025")
sketch26.AttachmentSupport = (doc.getObject("YZ_Plane"), [""])
sketch26.MapMode = "FlatFace"
sketch26.AttachmentOffset = App.Placement(Vector(0, 0, 65), App.Rotation())
sketch26.addGeometry(Part.Circle(Vector(21, -39, 0), Vector(0, 0, 1), 5), False)
sketch26.addConstraint(Sketcher.Constraint("Diameter", 0, Q("10.2 mm")))
sketch26.addConstraint(Sketcher.Constraint("DistanceX", -1, 1, 0, 3, Q("21 mm")))
sketch26.addConstraint(Sketcher.Constraint("DistanceY", 0, 3, -1, 1, Q("38.8 mm")))
doc.recompute()
hole15 = body.newObject("PartDesign::Hole", "Hole014")
hole15.Profile = sketch26
hole15.ThreadType = "None"
hole15.Diameter = 10.2
hole15.DepthType = "Dimension"
hole15.Depth = 18
hole15.DrillPoint = "Angled"
hole15.DrillPointAngle = 118

# Sketch on YZ plane
sketch27 = body.newObject("Sketcher::SketchObject", "Sketch026")
sketch27.AttachmentSupport = (doc.getObject("YZ_Plane"), [""])
sketch27.MapMode = "FlatFace"
sketch27.AttachmentOffset = App.Placement(Vector(0, 0, 65), App.Rotation())
sketch27.addGeometry(Part.Circle(Vector(48, -7, 0), Vector(0, 0, 1), 7), False)
sketch27.addConstraint(Sketcher.Constraint("Diameter", 0, Q("14 mm")))
sketch27.addConstraint(Sketcher.Constraint("DistanceX", -1, 1, 0, 3, Q("47.9 mm")))
sketch27.addConstraint(Sketcher.Constraint("DistanceY", 0, 3, -1, 1, Q("7.1 mm")))
doc.recompute()
hole16 = body.newObject("PartDesign::Hole", "Hole015")
hole16.Profile = sketch27
hole16.ThreadType = "None"
hole16.Diameter = 14
hole16.DepthType = "Dimension"
hole16.Depth = 60
hole16.DrillPoint = "Angled"
hole16.DrillPointAngle = 118

# Sketch on YZ plane
sketch28 = body.newObject("Sketcher::SketchObject", "Sketch027")
sketch28.AttachmentSupport = (doc.getObject("YZ_Plane"), [""])
sketch28.MapMode = "FlatFace"
sketch28.AttachmentOffset = App.Placement(Vector(0, 0, 65), App.Rotation())
sketch28.addGeometry(Part.Circle(Vector(48, -32, 0), Vector(0, 0, 1), 7), False)
sketch28.addConstraint(Sketcher.Constraint("Diameter", 0, Q("14 mm")))
sketch28.addConstraint(Sketcher.Constraint("DistanceX", -1, 1, 0, 3, Q("47.9 mm")))
sketch28.addConstraint(Sketcher.Constraint("DistanceY", 0, 3, -1, 1, Q("32.5 mm")))
doc.recompute()
hole17 = body.newObject("PartDesign::Hole", "Hole016")
hole17.Profile = sketch28
hole17.ThreadType = "None"
hole17.Diameter = 14
hole17.DepthType = "Dimension"
hole17.Depth = 100
hole17.DrillPoint = "Angled"
hole17.DrillPointAngle = 118

# Sketch on YZ plane
sketch29 = body.newObject("Sketcher::SketchObject", "Sketch028")
sketch29.AttachmentSupport = (doc.getObject("YZ_Plane"), [""])
sketch29.MapMode = "FlatFace"
sketch29.AttachmentOffset = App.Placement(Vector(0, 0, 65), App.Rotation())
sketch29.addGeometry(Part.Circle(Vector(21, -7.1, 0), Vector(0, 0, 1), 4), False)
sketch29.addConstraint(Sketcher.Constraint("Diameter", 0, Q("8 mm")))
sketch29.addConstraint(Sketcher.Constraint("DistanceX", -1, 1, 0, 3, Q("21 mm")))
sketch29.addConstraint(Sketcher.Constraint("DistanceY", 0, 3, -1, 1, Q("7.1 mm")))
doc.recompute()
hole18 = body.newObject("PartDesign::Hole", "Hole017")
hole18.Profile = sketch29
hole18.ThreadType = "None"
hole18.Diameter = 8
hole18.DepthType = "Dimension"
hole18.Depth = 10
hole18.DrillPoint = "Angled"
hole18.DrillPointAngle = 118

# Sketch on XY plane
sketch30 = body.newObject("Sketcher::SketchObject", "Sketch029")
sketch30.AttachmentSupport = (doc.getObject("XY_Plane"), [""])
sketch30.MapMode = "FlatFace"
sketch30.AttachmentOffset = App.Placement(Vector(0, 0, -62.5), App.Rotation())
sketch30.addGeometry(Part.Circle(Vector(-21, 68, 0), Vector(0, 0, 1), 2), False)
sketch30.addConstraint(Sketcher.Constraint("Diameter", 0, Q("4 mm")))
sketch30.addConstraint(Sketcher.Constraint("DistanceX", 0, 3, -1, 1, Q("21 mm")))
sketch30.addConstraint(Sketcher.Constraint("DistanceY", -1, 1, 0, 3, Q("68 mm")))
pocket11 = body.newObject("PartDesign::Pocket", "Pocket010")
pocket11.Profile = sketch30
pocket11.Type = "UpToFirst"
pocket11.Reversed = True

# Sketch on XY plane
sketch31 = body.newObject("Sketcher::SketchObject", "Sketch030")
sketch31.AttachmentSupport = (doc.getObject("XY_Plane"), [""])
sketch31.MapMode = "FlatFace"
sketch31.AttachmentOffset = App.Placement(Vector(0, 0, -62.5), App.Rotation())
sketch31.addGeometry(Part.Circle(Vector(-21, 68, 0), Vector(0, 0, 1), 4.2), False)
sketch31.addConstraint(Sketcher.Constraint("Diameter", 0, Q("8.5 mm")))
sketch31.addConstraint(Sketcher.Constraint("DistanceX", 0, 3, -1, 1, Q("21 mm")))
sketch31.addConstraint(Sketcher.Constraint("DistanceY", -1, 1, 0, 3, Q("68 mm")))
doc.recompute()
hole19 = body.newObject("PartDesign::Hole", "Hole018")
hole19.Profile = sketch31
hole19.ThreadType = "None"
hole19.Diameter = 8.5
hole19.DepthType = "Dimension"
hole19.Depth = 14
hole19.DrillPoint = "Angled"
hole19.DrillPointAngle = 118
hole19.Reversed = True

# Sketch on XZ plane
sketch32 = body.newObject("Sketcher::SketchObject", "Sketch031")
sketch32.AttachmentSupport = (doc.getObject("XZ_Plane"), [""])
sketch32.MapMode = "FlatFace"
sketch32.AttachmentOffset = App.Placement(Vector(0, 0, -95), App.Rotation())
sketch32.addGeometry(Part.Circle(Vector(-8.6, -31, 0), Vector(0, 0, 1), 3), False)
sketch32.addConstraint(Sketcher.Constraint("Diameter", 0, Q("6.1 mm")))
sketch32.addConstraint(Sketcher.Constraint("DistanceY", 0, 3, -1, 1, Q("31 mm")))
sketch32.addConstraint(Sketcher.Constraint("DistanceX", 0, 3, -1, 1, Q("8.6 mm")))
pocket12 = body.newObject("PartDesign::Pocket", "Pocket011")
pocket12.Profile = sketch32
pocket12.Length = 0.56
pocket12.Reversed = True

# Sketch on XZ plane
sketch33 = body.newObject("Sketcher::SketchObject", "Sketch032")
sketch33.AttachmentSupport = (doc.getObject("XZ_Plane"), [""])
sketch33.MapMode = "FlatFace"
sketch33.AttachmentOffset = App.Placement(Vector(0, 0, -94.44), App.Rotation())
sketch33.addGeometry(Part.Circle(Vector(-8.6, -31, 0), Vector(0, 0, 1), 2), False)
sketch33.addConstraint(Sketcher.Constraint("Diameter", 0, Q("4 mm")))
sketch33.addConstraint(Sketcher.Constraint("DistanceY", 0, 3, -1, 1, Q("31 mm")))
sketch33.addConstraint(Sketcher.Constraint("DistanceX", 0, 3, -1, 1, Q("8.6 mm")))
doc.recompute()
hole20 = body.newObject("PartDesign::Hole", "Hole019")
hole20.Profile = sketch33
hole20.ThreadType = "None"
hole20.Diameter = 4
hole20.DepthType = "Dimension"
hole20.Depth = 71
hole20.DrillPoint = "Angled"
hole20.DrillPointAngle = 118
hole20.Reversed = True

# Sketch on XY plane
sketch34 = body.newObject("Sketcher::SketchObject", "Sketch033")
sketch34.AttachmentSupport = (doc.getObject("XY_Plane"), [""])
sketch34.MapMode = "FlatFace"
sketch34.AttachmentOffset = App.Placement(Vector(0, 0, 62.5), App.Rotation())
sketch34.addGeometry(Part.Circle(Vector(-8.6, 22.9, 0), Vector(0, 0, 1), 2), False)
sketch34.addConstraint(Sketcher.Constraint("Diameter", 0, Q("4 mm")))
sketch34.addConstraint(Sketcher.Constraint("DistanceX", 0, 3, -1, 1, Q("8.6 mm")))
sketch34.addConstraint(Sketcher.Constraint("DistanceY", -1, 1, 0, 3, Q("22.9 mm")))
doc.recompute()
hole21 = body.newObject("PartDesign::Hole", "Hole020")
hole21.Profile = sketch34
hole21.ThreadType = "None"
hole21.Diameter = 4
hole21.DepthType = "Dimension"
hole21.Depth = 95
hole21.DrillPoint = "Angled"
hole21.DrillPointAngle = 118

doc.recompute()
